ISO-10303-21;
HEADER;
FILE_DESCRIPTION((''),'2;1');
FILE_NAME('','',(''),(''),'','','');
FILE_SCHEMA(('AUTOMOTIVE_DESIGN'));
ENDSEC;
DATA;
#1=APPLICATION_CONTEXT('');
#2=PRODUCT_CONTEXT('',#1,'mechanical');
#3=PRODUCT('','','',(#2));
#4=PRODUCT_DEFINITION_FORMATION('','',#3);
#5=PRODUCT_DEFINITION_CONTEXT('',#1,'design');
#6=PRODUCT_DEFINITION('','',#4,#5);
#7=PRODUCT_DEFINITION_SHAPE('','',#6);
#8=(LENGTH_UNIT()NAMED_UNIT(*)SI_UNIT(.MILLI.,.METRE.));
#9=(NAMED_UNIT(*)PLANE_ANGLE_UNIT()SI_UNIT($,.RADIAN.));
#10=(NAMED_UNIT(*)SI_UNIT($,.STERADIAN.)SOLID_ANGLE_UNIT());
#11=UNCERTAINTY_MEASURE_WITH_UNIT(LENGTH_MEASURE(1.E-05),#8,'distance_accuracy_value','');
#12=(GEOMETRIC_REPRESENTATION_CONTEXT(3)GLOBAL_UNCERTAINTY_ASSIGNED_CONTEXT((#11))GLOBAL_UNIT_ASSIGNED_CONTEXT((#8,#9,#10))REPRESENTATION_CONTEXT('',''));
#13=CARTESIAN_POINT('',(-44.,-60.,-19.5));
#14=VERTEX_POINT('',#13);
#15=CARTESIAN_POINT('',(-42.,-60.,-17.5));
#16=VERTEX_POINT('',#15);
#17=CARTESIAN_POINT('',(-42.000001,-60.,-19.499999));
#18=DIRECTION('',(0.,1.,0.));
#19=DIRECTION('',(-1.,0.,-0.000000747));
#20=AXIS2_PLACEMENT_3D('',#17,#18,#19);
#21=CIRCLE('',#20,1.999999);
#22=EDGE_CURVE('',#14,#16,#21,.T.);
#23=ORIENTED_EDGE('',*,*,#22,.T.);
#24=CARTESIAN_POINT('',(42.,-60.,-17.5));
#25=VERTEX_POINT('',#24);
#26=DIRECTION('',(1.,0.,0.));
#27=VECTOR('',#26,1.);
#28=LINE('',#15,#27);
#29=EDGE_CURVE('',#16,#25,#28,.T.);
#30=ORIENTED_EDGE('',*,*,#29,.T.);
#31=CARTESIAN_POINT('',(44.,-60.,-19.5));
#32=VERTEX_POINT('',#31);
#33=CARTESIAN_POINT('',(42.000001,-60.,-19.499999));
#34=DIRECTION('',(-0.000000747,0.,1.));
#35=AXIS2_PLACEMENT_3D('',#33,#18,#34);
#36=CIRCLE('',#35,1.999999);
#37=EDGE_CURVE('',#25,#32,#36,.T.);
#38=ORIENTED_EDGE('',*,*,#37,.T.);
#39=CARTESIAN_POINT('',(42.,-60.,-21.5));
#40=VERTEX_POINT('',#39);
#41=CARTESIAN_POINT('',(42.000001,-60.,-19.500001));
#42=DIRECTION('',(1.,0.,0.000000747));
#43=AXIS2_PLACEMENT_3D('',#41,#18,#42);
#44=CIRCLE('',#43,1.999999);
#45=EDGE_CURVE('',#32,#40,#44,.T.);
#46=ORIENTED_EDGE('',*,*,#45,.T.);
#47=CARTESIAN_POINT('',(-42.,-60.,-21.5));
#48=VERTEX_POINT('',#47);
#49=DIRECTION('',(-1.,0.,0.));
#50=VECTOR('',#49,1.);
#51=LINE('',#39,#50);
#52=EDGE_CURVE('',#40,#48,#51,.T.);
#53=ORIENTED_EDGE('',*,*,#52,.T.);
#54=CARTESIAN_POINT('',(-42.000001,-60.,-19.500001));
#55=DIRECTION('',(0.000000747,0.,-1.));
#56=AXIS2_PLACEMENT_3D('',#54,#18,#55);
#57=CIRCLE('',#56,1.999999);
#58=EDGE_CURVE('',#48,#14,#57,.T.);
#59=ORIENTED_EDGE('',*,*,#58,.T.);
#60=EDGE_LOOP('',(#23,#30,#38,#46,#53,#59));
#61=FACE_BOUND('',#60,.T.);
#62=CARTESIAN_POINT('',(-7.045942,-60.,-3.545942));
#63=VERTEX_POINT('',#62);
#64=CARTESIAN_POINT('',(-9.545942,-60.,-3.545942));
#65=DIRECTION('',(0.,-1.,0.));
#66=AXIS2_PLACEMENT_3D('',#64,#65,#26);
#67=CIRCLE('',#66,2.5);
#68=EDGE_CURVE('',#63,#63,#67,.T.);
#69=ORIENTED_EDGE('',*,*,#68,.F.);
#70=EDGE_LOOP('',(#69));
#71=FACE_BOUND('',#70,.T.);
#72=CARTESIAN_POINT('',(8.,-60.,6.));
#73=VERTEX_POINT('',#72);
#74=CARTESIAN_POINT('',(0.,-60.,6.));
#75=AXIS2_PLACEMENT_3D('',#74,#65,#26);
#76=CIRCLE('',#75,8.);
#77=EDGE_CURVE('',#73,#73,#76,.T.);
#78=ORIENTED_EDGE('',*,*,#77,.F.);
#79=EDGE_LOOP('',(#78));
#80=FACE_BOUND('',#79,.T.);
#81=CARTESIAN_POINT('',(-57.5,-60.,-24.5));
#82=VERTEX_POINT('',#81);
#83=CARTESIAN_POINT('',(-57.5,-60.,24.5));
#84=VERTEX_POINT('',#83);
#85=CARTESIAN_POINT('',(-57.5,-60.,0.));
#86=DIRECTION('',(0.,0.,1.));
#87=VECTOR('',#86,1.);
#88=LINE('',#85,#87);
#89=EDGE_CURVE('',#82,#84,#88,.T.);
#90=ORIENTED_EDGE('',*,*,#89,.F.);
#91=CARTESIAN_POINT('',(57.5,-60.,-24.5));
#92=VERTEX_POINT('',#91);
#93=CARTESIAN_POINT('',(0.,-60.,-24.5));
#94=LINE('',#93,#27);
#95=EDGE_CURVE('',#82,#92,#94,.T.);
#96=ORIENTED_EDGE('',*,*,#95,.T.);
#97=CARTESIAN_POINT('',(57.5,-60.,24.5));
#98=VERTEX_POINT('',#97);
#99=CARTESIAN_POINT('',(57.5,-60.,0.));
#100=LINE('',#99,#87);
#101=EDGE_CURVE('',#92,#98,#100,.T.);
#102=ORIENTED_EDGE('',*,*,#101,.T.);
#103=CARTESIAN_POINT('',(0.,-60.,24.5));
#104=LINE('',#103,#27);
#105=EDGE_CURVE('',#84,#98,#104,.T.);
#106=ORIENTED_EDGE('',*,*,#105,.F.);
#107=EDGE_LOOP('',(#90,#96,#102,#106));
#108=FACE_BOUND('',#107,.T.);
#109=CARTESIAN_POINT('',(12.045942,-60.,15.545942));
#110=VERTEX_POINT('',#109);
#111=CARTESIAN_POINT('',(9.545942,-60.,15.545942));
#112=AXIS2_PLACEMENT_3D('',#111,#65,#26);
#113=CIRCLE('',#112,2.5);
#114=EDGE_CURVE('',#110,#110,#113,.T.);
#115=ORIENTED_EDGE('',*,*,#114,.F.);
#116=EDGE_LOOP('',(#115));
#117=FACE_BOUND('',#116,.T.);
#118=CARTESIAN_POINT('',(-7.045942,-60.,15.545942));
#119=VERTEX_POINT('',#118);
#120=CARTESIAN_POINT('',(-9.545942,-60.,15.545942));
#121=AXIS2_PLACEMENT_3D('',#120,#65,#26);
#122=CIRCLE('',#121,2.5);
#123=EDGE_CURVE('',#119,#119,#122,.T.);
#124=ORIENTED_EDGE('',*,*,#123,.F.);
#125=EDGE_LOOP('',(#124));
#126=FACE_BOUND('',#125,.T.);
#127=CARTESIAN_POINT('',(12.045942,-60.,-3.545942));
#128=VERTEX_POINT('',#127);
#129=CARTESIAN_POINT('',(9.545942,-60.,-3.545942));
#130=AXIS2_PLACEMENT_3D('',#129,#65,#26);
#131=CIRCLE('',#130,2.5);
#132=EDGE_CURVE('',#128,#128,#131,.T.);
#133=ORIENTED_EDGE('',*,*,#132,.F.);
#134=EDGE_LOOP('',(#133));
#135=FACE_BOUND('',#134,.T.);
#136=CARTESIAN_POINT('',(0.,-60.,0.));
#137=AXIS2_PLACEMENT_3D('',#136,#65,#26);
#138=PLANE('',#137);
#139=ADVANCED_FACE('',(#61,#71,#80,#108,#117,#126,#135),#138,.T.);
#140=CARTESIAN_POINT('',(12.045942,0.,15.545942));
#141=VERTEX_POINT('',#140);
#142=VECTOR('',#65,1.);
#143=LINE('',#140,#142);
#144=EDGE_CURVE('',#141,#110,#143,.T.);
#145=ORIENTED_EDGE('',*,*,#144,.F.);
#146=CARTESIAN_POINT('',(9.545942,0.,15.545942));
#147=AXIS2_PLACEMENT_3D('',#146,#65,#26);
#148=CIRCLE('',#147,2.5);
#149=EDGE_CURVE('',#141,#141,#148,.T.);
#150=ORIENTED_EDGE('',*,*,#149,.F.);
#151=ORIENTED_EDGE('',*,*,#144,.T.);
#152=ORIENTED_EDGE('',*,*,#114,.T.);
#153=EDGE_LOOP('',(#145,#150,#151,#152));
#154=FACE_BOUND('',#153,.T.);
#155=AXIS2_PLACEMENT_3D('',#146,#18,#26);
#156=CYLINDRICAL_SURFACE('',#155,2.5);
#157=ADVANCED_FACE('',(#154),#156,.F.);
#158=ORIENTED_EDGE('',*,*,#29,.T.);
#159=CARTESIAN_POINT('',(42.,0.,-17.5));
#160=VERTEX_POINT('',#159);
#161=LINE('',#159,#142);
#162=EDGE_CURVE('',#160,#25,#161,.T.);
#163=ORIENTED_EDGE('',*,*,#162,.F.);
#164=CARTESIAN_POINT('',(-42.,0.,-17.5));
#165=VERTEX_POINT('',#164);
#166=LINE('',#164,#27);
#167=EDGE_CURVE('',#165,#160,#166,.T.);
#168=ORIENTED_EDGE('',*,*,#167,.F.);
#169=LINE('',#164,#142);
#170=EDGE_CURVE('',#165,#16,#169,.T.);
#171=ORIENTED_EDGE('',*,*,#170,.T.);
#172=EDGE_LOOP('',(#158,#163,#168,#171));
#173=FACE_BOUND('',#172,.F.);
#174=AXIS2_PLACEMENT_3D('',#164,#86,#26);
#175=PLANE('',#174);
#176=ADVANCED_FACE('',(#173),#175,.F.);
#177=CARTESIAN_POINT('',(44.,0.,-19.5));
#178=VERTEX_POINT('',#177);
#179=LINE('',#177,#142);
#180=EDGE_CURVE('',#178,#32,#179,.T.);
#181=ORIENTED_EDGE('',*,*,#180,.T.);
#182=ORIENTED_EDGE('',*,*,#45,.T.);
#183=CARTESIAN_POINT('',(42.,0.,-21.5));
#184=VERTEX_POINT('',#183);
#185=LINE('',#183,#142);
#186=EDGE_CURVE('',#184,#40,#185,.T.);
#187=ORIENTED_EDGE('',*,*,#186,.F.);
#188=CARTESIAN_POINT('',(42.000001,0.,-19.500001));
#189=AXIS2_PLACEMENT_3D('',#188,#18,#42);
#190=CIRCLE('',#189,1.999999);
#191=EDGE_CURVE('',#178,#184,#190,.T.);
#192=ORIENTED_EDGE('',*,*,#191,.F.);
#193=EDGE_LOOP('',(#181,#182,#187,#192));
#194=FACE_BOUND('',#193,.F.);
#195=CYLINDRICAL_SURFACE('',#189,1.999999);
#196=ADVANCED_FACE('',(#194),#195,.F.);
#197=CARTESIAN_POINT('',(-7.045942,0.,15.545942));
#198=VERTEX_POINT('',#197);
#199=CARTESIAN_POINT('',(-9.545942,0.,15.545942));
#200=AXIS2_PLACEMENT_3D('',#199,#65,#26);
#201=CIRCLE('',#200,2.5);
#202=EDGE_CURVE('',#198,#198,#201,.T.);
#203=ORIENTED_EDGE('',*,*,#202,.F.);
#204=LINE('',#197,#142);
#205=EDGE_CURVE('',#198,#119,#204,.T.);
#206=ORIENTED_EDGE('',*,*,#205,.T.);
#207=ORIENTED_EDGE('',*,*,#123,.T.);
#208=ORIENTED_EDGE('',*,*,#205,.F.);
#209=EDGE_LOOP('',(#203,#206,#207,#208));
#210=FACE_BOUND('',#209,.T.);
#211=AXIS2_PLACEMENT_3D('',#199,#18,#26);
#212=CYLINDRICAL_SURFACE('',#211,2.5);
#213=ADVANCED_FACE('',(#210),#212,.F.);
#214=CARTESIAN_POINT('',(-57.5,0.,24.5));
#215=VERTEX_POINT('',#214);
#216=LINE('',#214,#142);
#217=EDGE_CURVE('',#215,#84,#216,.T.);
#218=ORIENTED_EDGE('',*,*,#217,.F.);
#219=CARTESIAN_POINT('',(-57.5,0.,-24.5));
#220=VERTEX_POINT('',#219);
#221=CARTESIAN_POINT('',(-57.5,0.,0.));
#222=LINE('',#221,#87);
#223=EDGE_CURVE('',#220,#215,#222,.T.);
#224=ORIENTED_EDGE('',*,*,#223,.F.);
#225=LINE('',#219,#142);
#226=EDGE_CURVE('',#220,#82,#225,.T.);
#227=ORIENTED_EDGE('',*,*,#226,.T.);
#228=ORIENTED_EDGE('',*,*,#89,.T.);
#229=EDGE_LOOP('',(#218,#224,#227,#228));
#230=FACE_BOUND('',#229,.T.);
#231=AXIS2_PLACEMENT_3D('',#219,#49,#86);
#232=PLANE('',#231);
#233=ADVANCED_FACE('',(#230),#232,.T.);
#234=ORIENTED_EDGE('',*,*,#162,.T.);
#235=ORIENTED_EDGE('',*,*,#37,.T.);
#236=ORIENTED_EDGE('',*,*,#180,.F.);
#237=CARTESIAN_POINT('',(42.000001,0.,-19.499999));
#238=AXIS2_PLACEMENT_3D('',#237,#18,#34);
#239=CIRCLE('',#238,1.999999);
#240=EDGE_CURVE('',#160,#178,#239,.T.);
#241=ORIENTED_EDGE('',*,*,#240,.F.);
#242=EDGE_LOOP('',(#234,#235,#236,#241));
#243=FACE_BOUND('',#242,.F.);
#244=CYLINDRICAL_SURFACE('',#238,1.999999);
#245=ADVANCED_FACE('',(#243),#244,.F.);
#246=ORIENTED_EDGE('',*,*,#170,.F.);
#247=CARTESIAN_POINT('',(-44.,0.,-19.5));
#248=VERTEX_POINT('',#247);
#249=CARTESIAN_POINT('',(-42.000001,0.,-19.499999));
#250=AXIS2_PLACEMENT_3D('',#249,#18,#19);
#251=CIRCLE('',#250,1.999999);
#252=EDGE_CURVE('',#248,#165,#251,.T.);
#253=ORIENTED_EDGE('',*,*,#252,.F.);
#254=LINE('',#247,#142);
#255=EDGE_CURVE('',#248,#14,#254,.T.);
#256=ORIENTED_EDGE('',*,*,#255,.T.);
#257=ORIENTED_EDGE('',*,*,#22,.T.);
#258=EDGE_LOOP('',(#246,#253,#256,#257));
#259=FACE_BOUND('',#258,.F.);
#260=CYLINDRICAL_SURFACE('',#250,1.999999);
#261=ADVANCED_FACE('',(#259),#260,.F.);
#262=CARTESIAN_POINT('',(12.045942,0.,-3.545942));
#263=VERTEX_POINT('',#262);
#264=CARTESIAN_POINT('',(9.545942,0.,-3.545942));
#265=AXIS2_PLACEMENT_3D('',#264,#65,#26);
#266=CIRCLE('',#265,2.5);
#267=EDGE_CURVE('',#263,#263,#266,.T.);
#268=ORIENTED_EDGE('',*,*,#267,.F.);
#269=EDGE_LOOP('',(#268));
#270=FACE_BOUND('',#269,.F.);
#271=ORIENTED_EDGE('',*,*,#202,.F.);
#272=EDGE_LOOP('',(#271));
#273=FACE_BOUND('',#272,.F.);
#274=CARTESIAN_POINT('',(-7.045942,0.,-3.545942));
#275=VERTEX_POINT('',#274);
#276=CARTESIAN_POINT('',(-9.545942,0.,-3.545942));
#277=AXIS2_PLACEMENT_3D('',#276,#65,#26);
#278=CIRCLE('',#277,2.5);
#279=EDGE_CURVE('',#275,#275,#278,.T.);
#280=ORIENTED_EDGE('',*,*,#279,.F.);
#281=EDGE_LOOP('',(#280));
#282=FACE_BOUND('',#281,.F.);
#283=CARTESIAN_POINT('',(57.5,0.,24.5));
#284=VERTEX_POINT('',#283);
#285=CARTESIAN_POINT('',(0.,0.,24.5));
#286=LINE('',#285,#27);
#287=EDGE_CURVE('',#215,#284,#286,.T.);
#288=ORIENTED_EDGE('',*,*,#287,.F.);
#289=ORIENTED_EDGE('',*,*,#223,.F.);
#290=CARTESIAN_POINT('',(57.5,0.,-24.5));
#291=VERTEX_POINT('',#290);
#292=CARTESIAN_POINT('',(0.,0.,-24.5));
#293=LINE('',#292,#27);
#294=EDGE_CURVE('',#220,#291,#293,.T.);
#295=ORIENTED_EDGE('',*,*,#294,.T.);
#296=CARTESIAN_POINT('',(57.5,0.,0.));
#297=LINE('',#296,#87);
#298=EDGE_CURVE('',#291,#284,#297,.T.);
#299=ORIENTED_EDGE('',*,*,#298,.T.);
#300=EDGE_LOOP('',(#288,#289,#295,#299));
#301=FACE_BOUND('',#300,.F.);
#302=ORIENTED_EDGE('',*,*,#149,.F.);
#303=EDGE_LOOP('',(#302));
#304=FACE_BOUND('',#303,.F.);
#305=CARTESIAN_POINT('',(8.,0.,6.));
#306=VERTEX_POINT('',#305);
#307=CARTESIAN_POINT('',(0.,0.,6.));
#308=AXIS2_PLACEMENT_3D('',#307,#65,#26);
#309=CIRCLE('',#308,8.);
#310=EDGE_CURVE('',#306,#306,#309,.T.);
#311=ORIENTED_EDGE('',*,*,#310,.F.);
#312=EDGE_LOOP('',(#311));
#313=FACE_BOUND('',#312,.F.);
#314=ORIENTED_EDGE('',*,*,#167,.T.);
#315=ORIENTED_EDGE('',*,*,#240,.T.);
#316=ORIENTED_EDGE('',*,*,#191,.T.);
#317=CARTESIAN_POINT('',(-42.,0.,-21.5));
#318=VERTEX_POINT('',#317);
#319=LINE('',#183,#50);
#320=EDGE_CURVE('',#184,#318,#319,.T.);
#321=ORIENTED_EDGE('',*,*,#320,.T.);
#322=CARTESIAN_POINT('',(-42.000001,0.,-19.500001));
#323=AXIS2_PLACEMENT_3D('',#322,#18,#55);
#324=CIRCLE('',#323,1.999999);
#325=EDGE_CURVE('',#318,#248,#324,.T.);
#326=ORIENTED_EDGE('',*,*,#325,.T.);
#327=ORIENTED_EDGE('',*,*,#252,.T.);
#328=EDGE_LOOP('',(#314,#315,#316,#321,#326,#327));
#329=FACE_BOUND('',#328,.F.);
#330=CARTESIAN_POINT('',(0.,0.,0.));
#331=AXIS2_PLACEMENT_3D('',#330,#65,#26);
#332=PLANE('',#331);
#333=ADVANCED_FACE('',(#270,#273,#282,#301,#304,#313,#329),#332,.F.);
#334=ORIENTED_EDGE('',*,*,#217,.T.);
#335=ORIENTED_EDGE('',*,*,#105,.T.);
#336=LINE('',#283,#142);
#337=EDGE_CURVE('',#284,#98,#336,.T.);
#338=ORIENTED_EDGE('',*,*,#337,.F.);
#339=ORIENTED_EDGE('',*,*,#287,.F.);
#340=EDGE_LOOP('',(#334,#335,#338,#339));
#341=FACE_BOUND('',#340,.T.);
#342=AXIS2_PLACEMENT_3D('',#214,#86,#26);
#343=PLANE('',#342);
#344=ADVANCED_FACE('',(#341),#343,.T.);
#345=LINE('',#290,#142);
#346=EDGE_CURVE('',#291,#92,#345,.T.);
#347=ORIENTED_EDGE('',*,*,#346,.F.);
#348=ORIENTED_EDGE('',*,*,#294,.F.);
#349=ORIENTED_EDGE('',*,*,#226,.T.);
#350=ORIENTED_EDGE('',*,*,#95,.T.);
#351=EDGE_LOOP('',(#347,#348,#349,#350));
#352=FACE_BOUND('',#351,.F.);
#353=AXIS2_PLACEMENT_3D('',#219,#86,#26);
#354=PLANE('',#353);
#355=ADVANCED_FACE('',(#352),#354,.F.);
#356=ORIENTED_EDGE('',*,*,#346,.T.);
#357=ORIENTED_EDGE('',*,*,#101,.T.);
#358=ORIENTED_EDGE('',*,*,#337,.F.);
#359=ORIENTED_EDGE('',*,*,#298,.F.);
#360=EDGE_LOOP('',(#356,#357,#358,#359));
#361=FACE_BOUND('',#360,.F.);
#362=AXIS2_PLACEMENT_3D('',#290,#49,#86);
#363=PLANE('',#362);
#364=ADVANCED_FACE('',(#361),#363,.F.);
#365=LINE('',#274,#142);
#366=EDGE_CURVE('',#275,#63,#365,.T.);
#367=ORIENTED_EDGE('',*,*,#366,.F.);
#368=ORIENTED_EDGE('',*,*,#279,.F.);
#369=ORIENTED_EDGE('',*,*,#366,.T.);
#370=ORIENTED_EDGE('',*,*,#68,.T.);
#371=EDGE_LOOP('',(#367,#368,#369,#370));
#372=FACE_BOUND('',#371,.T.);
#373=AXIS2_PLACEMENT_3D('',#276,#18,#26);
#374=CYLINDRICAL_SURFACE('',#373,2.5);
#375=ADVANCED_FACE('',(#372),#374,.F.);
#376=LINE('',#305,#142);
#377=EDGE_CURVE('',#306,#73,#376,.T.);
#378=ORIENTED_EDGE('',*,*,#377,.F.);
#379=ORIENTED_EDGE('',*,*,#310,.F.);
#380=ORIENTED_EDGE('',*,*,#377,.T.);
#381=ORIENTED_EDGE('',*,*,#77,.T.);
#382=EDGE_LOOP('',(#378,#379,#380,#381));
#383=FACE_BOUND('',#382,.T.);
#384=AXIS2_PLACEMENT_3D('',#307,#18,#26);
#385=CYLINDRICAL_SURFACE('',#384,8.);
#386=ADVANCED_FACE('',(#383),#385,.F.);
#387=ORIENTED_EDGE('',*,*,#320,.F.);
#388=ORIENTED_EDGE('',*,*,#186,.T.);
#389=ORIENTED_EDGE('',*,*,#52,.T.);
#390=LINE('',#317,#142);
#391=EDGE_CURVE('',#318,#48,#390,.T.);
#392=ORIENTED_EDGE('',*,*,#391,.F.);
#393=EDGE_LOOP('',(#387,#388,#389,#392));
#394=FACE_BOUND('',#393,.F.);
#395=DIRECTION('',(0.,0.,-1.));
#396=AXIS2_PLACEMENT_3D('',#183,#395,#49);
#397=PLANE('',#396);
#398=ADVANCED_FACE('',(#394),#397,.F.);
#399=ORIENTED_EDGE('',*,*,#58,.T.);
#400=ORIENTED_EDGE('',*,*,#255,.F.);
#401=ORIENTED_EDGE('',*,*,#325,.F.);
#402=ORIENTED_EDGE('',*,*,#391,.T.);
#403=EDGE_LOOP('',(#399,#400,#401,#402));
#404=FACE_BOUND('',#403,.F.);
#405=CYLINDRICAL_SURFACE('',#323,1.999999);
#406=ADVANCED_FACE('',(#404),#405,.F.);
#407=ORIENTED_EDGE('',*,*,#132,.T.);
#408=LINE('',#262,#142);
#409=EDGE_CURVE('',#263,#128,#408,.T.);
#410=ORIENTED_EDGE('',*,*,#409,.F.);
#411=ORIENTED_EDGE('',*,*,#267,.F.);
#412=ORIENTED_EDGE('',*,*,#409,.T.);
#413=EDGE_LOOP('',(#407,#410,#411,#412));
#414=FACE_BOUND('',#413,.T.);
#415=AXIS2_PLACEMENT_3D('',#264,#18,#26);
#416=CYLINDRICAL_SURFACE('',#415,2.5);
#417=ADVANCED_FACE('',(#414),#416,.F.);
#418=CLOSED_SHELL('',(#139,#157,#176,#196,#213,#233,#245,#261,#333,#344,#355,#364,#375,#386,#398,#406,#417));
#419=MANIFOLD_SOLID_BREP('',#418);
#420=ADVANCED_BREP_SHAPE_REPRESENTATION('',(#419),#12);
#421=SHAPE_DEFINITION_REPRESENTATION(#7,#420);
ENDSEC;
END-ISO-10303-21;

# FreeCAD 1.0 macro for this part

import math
import FreeCAD as App
import Part
import Sketcher
Q = App.Units.Quantity

doc = App.newDocument("Part")
body = doc.addObject("PartDesign::Body", "Body")

# Sketch on XZ plane
sketch1 = body.newObject("Sketcher::SketchObject", "Sketch")
sketch1.AttachmentSupport = (doc.getObject("XZ_Plane"), [""])
sketch1.MapMode = "FlatFace"
sketch1.addGeometry([
    Part.LineSegment(App.Vector(-57.5, 24.5, 0), App.Vector(-57.5, -24.5, 0)),  # 0
    Part.LineSegment(App.Vector(-57.5, -24.5, 0), App.Vector(57.5, -24.5, 0)),  # 1
    Part.LineSegment(App.Vector(57.5, -24.5, 0), App.Vector(57.5, 24.5, 0)),  # 2
    Part.LineSegment(App.Vector(57.5, 24.5, 0), App.Vector(-57.5, 24.5, 0)),  # 3
    Part.Circle(App.Vector(-9.5, -3.5, 0), App.Vector(0, 0, 1), 2.5),  # 4
    Part.ArcOfCircle(Part.Circle(App.Vector(42, -19.5, 0), App.Vector(0, 0, 1), 2), math.radians(0), math.radians(90)),  # 5
    Part.ArcOfCircle(Part.Circle(App.Vector(42, -19.5, 0), App.Vector(0, 0, 1), 2), math.radians(-90), math.radians(0)),  # 6
    Part.LineSegment(App.Vector(42, -21.5, 0), App.Vector(-42, -21.5, 0)),  # 7
    Part.ArcOfCircle(Part.Circle(App.Vector(-42, -19.5, 0), App.Vector(0, 0, 1), 2), math.radians(180), math.radians(270)),  # 8
    Part.ArcOfCircle(Part.Circle(App.Vector(-42, -19.5, 0), App.Vector(0, 0, 1), 2), math.radians(90), math.radians(180)),  # 9
    Part.LineSegment(App.Vector(-42, -17.5, 0), App.Vector(42, -17.5, 0)),  # 10
    Part.Circle(App.Vector(9.5, -3.5, 0), App.Vector(0, 0, 1), 2.5),  # 11
    Part.Circle(App.Vector(-9.5, 15.5, 0), App.Vector(0, 0, 1), 2.5),  # 12
    Part.Circle(App.Vector(0, 6, 0), App.Vector(0, 0, 1), 8),  # 13
    Part.Circle(App.Vector(9.5, 15.5, 0), App.Vector(0, 0, 1), 2.5),  # 14
], False)
sketch1.addConstraint([
    Sketcher.Constraint("Coincident", 0, 2, 1, 1),
    Sketcher.Constraint("Coincident", 1, 2, 2, 1),
    Sketcher.Constraint("Coincident", 2, 2, 3, 1),
    Sketcher.Constraint("Coincident", 3, 2, 0, 1),
    Sketcher.Constraint("Tangent", 5, 1, 6, 2),
    Sketcher.Constraint("Tangent", 6, 1, 7, 1),
    Sketcher.Constraint("Tangent", 7, 2, 8, 2),
    Sketcher.Constraint("Tangent", 8, 1, 9, 2),
    Sketcher.Constraint("Tangent", 9, 1, 10, 1),
    Sketcher.Constraint("Tangent", 10, 2, 5, 2),
    Sketcher.Constraint("Vertical", 0),
    Sketcher.Constraint("Horizontal", 1),
    Sketcher.Constraint("Vertical", 2),
    Sketcher.Constraint("Horizontal", 3),
    Sketcher.Constraint("Horizontal", 7),
    Sketcher.Constraint("Horizontal", 10),
    Sketcher.Constraint("Equal", 5, 6),
    Sketcher.Constraint("Equal", 6, 8),
    Sketcher.Constraint("Equal", 4, 11),
    Sketcher.Constraint("Equal", 11, 12),
    Sketcher.Constraint("Equal", 12, 14),
    Sketcher.Constraint("Symmetric", 0, 2, 2, 2, -1, 1),
    Sketcher.Constraint("Symmetric", 4, 3, 11, 3, -2),
    Sketcher.Constraint("Symmetric", 12, 3, 14, 3, -2),
    Sketcher.Constraint("Symmetric", 5, 1, 8, 1, -2),
    Sketcher.Constraint("PointOnObject", 13, 3, -2),
    Sketcher.Constraint("Horizontal", 9, 3, 5, 1),
    Sketcher.Constraint("Vertical", 4, 3, 12, 3),
    Sketcher.Constraint("Diameter", 4, Q("5 mm")),
    Sketcher.Constraint("Diameter", 13, Q("16 mm")),
    Sketcher.Constraint("Radius", 5, Q("1.999999 mm")),
    Sketcher.Constraint("DistanceX", 1, 1, 1, 2, Q("115 mm")),
    Sketcher.Constraint("DistanceX", 7, 2, 7, 1, Q("84 mm")),
    Sketcher.Constraint("DistanceY", 0, 2, 0, 1, Q("49 mm")),
    Sketcher.Constraint("DistanceY", -1, 1, 13, 3, Q("6 mm")),
    Sketcher.Constraint("DistanceY", 0, 2, 8, 3, Q("4.999999 mm")),
    Sketcher.Constraint("DistanceY", 6, 3, 4, 3, Q("15.954059 mm")),
    Sketcher.Constraint("DistanceX", 8, 3, 4, 3, Q("32.454059 mm")),
    Sketcher.Constraint("DistanceY", 9, 3, 12, 3, Q("35.045941 mm")),
])
pad1 = body.newObject("PartDesign::Pad", "Pad")
pad1.Profile = sketch1
pad1.Length = 60

doc.recompute()
